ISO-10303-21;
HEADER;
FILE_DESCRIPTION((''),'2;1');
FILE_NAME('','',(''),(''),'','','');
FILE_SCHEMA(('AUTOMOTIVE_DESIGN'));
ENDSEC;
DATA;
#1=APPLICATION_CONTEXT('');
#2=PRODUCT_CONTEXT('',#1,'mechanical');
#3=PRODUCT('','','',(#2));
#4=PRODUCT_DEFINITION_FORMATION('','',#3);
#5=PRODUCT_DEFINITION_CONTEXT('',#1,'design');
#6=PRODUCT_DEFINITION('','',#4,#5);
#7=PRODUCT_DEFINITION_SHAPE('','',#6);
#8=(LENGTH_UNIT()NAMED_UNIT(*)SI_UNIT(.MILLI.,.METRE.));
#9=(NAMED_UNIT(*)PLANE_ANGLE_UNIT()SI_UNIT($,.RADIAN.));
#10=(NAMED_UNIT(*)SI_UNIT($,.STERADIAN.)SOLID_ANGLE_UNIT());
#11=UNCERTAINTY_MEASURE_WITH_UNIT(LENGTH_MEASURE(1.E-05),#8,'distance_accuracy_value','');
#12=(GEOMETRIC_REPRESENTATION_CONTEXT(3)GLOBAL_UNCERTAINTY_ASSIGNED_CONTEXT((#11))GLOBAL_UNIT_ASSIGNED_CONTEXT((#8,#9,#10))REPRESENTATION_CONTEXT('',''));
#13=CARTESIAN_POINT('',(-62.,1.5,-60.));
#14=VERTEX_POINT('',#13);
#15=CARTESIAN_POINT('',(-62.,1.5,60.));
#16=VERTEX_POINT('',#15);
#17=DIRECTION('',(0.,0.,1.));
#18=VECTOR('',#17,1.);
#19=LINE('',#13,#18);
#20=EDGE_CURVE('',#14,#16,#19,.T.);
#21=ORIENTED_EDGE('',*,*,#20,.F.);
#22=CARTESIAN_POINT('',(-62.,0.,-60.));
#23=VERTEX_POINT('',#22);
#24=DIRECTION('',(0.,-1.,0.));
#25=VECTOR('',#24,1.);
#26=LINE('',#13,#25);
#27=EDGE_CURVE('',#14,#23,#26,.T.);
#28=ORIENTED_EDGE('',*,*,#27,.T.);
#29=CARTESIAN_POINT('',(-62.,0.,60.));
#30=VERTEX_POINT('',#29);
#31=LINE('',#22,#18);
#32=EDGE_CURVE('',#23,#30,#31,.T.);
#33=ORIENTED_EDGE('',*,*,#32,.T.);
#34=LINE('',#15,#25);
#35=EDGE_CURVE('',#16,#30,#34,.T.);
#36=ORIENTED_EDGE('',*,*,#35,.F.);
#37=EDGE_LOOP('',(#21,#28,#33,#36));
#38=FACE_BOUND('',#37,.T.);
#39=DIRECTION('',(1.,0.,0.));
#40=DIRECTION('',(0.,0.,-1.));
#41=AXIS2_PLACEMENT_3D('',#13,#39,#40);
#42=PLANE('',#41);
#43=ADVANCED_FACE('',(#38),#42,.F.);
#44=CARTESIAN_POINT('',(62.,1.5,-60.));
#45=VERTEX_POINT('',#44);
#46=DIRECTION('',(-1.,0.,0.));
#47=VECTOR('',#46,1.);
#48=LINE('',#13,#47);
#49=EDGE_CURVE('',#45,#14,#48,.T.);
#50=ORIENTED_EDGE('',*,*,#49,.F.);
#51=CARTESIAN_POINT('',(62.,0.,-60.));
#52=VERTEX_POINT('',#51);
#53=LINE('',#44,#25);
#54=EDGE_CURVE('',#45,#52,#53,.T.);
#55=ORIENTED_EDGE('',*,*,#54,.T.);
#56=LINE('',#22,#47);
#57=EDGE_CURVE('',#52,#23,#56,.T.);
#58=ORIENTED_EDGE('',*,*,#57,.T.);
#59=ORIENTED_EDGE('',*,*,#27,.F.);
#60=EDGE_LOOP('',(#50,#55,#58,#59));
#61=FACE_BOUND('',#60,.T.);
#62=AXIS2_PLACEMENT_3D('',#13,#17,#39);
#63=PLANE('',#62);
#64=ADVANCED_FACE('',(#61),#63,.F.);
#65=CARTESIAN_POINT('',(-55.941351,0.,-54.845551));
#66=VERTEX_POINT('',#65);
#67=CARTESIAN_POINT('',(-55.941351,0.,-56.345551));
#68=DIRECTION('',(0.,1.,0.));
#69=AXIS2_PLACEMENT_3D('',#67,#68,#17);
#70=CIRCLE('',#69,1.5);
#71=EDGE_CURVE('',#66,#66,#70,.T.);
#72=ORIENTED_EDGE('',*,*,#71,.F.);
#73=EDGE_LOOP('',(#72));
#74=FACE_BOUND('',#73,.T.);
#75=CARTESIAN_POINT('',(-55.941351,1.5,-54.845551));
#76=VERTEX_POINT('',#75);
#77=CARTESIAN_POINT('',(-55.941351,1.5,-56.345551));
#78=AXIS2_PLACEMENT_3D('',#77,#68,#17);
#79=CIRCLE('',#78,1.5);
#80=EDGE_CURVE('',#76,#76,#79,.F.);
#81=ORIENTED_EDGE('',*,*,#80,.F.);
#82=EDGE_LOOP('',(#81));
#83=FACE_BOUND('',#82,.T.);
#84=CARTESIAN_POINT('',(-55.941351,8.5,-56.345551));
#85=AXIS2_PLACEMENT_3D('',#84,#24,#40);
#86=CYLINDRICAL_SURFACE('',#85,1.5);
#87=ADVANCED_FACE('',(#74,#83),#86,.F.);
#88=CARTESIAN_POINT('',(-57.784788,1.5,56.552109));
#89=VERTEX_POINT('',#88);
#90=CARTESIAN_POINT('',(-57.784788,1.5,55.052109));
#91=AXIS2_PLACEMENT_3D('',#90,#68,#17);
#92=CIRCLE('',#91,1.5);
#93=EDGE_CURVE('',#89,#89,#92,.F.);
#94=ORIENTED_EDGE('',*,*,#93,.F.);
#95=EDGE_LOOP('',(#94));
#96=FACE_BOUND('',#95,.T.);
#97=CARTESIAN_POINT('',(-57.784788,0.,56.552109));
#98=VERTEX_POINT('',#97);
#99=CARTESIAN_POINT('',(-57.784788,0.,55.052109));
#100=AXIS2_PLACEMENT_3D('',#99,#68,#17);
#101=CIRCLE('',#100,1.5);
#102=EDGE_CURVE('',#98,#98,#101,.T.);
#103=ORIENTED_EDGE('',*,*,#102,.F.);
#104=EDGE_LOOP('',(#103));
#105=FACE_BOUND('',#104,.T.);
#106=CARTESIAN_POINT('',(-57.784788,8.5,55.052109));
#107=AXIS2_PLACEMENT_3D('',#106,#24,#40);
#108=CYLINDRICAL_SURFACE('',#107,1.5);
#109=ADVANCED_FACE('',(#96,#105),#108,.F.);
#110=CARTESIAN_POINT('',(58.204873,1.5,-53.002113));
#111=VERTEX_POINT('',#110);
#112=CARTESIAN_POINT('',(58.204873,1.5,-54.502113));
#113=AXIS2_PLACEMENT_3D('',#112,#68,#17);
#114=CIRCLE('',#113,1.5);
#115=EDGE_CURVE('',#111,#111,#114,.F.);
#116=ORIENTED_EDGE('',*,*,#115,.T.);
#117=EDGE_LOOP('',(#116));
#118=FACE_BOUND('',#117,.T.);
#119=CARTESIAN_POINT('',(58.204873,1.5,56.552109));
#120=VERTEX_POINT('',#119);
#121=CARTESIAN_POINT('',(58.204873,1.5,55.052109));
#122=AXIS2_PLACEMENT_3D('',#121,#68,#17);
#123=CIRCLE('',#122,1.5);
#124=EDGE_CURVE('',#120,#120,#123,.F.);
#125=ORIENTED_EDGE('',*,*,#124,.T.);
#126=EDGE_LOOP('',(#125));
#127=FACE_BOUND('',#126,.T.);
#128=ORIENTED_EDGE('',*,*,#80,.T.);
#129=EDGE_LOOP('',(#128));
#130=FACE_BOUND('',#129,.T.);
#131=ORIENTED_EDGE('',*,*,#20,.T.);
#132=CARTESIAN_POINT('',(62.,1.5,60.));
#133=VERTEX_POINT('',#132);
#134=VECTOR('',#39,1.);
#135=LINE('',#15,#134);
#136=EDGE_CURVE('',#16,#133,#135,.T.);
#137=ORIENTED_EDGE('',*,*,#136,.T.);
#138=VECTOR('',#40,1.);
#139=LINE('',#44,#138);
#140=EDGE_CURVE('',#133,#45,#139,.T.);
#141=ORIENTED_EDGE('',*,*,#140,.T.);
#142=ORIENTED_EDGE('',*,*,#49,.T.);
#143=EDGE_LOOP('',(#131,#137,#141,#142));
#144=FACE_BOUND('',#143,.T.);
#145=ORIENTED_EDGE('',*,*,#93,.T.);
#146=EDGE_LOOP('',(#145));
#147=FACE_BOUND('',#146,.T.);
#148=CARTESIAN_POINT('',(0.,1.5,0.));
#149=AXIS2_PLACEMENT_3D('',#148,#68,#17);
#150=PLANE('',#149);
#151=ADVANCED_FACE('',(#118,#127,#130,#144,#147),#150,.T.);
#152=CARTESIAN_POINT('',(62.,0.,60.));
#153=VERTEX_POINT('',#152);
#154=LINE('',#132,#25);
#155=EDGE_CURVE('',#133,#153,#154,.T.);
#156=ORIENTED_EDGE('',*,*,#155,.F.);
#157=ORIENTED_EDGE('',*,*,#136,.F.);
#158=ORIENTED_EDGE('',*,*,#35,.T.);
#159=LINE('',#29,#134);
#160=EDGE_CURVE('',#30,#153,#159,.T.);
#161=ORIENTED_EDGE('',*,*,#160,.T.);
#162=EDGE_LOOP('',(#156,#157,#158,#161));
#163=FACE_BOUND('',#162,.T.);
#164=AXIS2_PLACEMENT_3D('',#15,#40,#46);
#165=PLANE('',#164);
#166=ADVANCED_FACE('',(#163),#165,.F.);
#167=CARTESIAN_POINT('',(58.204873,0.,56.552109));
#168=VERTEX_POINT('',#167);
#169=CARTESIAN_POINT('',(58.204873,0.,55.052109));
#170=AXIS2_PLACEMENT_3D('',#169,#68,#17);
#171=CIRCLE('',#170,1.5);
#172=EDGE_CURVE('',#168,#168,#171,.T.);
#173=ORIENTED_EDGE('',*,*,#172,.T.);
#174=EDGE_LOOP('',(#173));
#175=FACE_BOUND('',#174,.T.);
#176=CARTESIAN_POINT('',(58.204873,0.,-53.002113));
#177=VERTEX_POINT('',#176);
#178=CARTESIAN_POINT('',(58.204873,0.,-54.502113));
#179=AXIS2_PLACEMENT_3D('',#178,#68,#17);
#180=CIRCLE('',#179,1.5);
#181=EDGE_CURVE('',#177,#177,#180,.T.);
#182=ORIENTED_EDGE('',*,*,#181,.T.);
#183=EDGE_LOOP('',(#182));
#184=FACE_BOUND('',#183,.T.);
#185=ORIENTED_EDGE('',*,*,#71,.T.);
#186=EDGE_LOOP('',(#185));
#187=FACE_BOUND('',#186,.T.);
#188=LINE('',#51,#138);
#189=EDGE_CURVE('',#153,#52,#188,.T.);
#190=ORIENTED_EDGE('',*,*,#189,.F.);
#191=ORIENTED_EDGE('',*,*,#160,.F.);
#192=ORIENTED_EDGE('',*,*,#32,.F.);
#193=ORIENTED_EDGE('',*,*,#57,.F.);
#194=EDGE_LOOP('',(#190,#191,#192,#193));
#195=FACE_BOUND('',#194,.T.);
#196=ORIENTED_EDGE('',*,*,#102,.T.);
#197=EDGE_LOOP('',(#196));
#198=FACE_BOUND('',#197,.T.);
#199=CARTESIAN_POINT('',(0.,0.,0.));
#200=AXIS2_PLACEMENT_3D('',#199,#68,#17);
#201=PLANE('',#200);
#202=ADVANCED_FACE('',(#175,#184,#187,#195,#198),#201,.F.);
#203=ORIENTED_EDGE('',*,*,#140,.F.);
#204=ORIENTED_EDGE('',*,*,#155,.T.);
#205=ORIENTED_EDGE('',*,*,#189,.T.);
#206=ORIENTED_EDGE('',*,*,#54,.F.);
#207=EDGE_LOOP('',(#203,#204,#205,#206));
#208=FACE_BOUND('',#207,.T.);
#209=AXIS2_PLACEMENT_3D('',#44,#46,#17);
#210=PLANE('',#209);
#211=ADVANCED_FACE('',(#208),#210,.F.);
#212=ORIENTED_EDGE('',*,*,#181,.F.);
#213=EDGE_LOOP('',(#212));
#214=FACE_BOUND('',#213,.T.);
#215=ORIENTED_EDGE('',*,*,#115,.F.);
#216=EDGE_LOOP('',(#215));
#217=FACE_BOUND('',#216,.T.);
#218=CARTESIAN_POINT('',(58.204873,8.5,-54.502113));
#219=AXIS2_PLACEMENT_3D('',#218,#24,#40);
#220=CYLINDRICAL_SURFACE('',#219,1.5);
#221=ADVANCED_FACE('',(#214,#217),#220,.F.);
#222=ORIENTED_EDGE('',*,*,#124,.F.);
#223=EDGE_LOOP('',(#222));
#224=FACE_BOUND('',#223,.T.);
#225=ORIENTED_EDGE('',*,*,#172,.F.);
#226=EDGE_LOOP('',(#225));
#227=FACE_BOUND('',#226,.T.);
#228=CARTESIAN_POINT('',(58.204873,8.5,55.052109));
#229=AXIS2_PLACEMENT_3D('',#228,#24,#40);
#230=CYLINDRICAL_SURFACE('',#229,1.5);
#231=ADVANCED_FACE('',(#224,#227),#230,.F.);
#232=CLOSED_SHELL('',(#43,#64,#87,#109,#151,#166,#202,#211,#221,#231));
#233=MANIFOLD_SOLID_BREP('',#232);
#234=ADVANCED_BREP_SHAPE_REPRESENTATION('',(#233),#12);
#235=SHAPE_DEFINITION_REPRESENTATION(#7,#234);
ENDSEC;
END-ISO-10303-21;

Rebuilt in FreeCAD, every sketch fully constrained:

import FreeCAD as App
import Part
import Sketcher
from FreeCAD import Vector
Q = App.Units.Quantity

doc = App.newDocument("Part")
body = doc.addObject("PartDesign::Body", "Body")

# Sketch on XZ plane
sketch1 = doc.addObject("Sketcher::SketchObject", "Sketch")
body.addObject(sketch1)
sketch1.AttachmentSupport = (doc.XZ_Plane, [""])
sketch1.MapMode = "FlatFace"
sketch1.addGeometry(Part.LineSegment(Vector(-62, -60, 0), Vector(-62, 60, 0)), False)
sketch1.addGeometry(Part.LineSegment(Vector(-62, 60, 0), Vector(62, 60, 0)), False)
sketch1.addGeometry(Part.LineSegment(Vector(62, 60, 0), Vector(62, -60, 0)), False)
sketch1.addGeometry(Part.LineSegment(Vector(62, -60, 0), Vector(-62, -60, 0)), False)
sketch1.addConstraint(Sketcher.Constraint("Coincident", 0, 2, 1, 1))
sketch1.addConstraint(Sketcher.Constraint("Coincident", 1, 2, 2, 1))
sketch1.addConstraint(Sketcher.Constraint("Coincident", 2, 2, 3, 1))
sketch1.addConstraint(Sketcher.Constraint("Coincident", 3, 2, 0, 1))
sketch1.addConstraint(Sketcher.Constraint("Vertical", 0))
sketch1.addConstraint(Sketcher.Constraint("Horizontal", 1))
sketch1.addConstraint(Sketcher.Constraint("Vertical", 2))
sketch1.addConstraint(Sketcher.Constraint("Horizontal", 3))
sketch1.addConstraint(Sketcher.Constraint("Symmetric", 0, 2, 2, 2, -1, 1))
sketch1.addConstraint(Sketcher.Constraint("DistanceX", 1, 1, 1, 2, Q("124 mm")))
sketch1.addConstraint(Sketcher.Constraint("DistanceY", 0, 1, 0, 2, Q("120 mm")))
pad1 = doc.addObject("PartDesign::Pad", "Pad")
body.addObject(pad1)
pad1.Profile = sketch1
pad1.Length = 1.5
pad1.Reversed = True

# Sketch on XZ plane
sketch2 = doc.addObject("Sketcher::SketchObject", "Sketch001")
body.addObject(sketch2)
sketch2.AttachmentSupport = (doc.XZ_Plane, [""])
sketch2.MapMode = "FlatFace"
sketch2.addGeometry(Part.Circle(Vector(-55.9, -56.3, 0), Vector(0, 0, 1), 1.5), False)
sketch2.addGeometry(Part.Circle(Vector(58.2, -54.5, 0), Vector(0, 0, 1), 1.5), False)
sketch2.addGeometry(Part.Circle(Vector(-57.8, 55.1, 0), Vector(0, 0, 1), 1.5), False)
sketch2.addGeometry(Part.Circle(Vector(58.2, 55.1, 0), Vector(0, 0, 1), 1.5), False)
sketch2.addConstraint(Sketcher.Constraint("Equal", 0, 1))
sketch2.addConstraint(Sketcher.Constraint("Equal", 1, 2))
sketch2.addConstraint(Sketcher.Constraint("Equal", 2, 3))
sketch2.addConstraint(Sketcher.Constraint("Horizontal", 2, 3, 3, 3))
sketch2.addConstraint(Sketcher.Constraint("Vertical", 1, 3, 3, 3))
sketch2.addConstraint(Sketcher.Constraint("Diameter", 0, Q("3 mm")))
sketch2.addConstraint(Sketcher.Constraint("DistanceX", 0, 3, -1, 1, Q("55.941351 mm")))
sketch2.addConstraint(Sketcher.Constraint("DistanceY", 0, 3, -1, 1, Q("56.345551 mm")))
sketch2.addConstraint(Sketcher.Constraint("DistanceX", 2, 3, -1, 1, Q("57.784788 mm")))
sketch2.addConstraint(Sketcher.Constraint("DistanceY", -1, 1, 2, 3, Q("55.052109 mm")))
sketch2.addConstraint(Sketcher.Constraint("DistanceX", 2, 3, 1, 3, Q("115.989662 mm")))
sketch2.addConstraint(Sketcher.Constraint("DistanceY", 1, 3, -1, 1, Q("54.502113 mm")))
pocket1 = doc.addObject("PartDesign::Pocket", "Pocket")
body.addObject(pocket1)
pocket1.Profile = sketch2
pocket1.Length = 8.5

doc.recompute()
